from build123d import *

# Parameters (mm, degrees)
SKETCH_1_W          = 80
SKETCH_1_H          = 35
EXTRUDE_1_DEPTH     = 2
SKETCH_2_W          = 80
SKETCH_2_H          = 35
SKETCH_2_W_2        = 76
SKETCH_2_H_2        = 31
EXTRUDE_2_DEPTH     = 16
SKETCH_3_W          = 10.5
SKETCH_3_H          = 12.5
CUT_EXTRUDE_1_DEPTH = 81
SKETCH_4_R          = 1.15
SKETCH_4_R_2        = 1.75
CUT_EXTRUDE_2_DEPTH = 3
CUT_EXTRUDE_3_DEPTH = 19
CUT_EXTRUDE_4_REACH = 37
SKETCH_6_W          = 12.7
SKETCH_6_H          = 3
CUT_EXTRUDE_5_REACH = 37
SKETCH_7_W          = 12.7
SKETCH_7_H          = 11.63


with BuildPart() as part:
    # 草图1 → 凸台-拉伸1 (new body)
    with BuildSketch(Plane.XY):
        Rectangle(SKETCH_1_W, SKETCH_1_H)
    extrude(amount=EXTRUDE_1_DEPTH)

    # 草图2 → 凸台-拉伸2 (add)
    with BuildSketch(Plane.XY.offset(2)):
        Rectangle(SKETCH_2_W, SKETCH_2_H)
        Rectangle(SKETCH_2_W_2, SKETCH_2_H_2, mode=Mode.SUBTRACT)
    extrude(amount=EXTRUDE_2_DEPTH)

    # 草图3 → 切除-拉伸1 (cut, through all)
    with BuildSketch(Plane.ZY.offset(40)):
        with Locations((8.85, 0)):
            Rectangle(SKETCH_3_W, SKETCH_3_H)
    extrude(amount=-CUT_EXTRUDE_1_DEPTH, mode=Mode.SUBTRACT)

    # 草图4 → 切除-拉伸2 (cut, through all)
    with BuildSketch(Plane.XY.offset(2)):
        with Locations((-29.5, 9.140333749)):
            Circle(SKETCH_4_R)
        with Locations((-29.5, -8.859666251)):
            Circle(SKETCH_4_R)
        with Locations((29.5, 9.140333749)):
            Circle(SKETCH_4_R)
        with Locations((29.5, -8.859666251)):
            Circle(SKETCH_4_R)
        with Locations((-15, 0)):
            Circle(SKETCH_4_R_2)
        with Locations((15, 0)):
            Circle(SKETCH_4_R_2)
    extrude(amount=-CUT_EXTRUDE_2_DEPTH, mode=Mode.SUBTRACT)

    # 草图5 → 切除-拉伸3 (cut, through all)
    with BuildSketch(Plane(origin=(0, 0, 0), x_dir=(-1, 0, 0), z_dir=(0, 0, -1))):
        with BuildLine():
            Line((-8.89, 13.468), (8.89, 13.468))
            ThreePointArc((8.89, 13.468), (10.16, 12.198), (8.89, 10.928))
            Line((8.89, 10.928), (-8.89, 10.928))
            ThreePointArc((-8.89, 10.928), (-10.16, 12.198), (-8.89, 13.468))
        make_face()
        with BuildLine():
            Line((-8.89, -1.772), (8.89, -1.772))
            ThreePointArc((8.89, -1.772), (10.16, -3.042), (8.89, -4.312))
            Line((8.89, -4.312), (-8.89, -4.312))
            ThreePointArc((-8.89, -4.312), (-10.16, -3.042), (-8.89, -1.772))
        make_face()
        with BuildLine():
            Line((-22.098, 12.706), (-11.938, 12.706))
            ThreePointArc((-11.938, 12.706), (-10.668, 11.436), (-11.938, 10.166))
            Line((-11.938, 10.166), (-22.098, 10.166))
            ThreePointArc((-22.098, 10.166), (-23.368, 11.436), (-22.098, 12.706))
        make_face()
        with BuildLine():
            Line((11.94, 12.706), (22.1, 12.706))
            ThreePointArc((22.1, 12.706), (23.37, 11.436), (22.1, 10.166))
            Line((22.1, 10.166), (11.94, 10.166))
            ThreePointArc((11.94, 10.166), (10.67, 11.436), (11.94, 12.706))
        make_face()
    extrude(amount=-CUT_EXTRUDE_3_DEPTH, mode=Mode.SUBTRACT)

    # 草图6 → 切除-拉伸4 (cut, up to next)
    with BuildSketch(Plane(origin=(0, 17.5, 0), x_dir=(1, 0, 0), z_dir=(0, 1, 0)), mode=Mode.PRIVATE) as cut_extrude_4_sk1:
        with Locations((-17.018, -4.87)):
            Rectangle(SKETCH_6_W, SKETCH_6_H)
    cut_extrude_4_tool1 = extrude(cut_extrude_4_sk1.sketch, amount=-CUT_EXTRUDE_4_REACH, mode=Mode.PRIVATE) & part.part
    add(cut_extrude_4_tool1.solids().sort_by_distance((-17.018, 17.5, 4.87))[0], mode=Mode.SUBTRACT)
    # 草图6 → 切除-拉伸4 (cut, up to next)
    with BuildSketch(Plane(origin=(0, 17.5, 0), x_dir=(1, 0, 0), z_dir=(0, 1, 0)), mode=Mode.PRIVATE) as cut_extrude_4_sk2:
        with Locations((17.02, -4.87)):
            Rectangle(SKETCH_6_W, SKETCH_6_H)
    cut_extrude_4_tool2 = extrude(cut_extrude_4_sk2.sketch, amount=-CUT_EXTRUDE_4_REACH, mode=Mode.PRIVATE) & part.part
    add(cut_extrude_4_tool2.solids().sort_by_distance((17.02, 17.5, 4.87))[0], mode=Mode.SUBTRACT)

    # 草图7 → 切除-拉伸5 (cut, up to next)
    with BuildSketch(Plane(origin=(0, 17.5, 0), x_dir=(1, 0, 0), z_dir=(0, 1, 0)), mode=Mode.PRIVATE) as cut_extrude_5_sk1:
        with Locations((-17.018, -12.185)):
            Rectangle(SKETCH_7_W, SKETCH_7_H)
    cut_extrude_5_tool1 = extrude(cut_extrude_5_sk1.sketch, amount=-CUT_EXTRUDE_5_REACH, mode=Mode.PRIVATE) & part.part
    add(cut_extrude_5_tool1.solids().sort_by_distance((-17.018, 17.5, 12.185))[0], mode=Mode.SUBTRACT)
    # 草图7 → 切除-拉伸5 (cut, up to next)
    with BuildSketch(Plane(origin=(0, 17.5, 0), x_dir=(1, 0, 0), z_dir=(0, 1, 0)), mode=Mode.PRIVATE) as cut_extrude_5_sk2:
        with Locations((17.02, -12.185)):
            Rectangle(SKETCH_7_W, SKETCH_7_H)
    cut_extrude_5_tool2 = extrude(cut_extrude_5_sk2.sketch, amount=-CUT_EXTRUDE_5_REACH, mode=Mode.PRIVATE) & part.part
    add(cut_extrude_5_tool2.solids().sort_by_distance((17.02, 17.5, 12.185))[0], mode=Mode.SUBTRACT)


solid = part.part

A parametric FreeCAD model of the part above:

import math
import FreeCAD as App
import Part
import Sketcher
Q = App.Units.Quantity

doc = App.newDocument("Part")
body = doc.addObject("PartDesign::Body", "Body")

sketch1 = doc.addObject("Sketcher::SketchObject", "Sketch")
body.addObject(sketch1)
sketch1.AttachmentSupport = (doc.XY_Plane, [""])
sketch1.MapMode = "FlatFace"
sketch1.addGeometry([
    Part.LineSegment(App.Vector(-40, 18, 0), App.Vector(-40, -18, 0)),
    Part.LineSegment(App.Vector(-40, -18, 0), App.Vector(40, -18, 0)),
    Part.LineSegment(App.Vector(40, -18, 0), App.Vector(40, 18, 0)),
    Part.LineSegment(App.Vector(40, 18, 0), App.Vector(-40, 18, 0)),
], False)
sketch1.addConstraint([
    Sketcher.Constraint("Coincident", 0, 2, 1, 1),
    Sketcher.Constraint("Coincident", 1, 2, 2, 1),
    Sketcher.Constraint("Coincident", 2, 2, 3, 1),
    Sketcher.Constraint("Coincident", 3, 2, 0, 1),
    Sketcher.Constraint("Vertical", 0),
    Sketcher.Constraint("Horizontal", 1),
    Sketcher.Constraint("Vertical", 2),
    Sketcher.Constraint("Horizontal", 3),
    Sketcher.Constraint("Symmetric", 0, 2, 2, 2, -1, 1),
    Sketcher.Constraint("DistanceX", 1, 1, 1, 2, Q("80 mm")),
    Sketcher.Constraint("DistanceY", 0, 2, 0, 1, Q("35 mm")),
])
pad1 = doc.addObject("PartDesign::Pad", "Pad")
body.addObject(pad1)
pad1.Profile = sketch1
pad1.Length = 2

sketch2 = doc.addObject("Sketcher::SketchObject", "Sketch001")
body.addObject(sketch2)
sketch2.AttachmentSupport = (doc.XY_Plane, [""])
sketch2.MapMode = "FlatFace"
sketch2.AttachmentOffset = App.Placement(App.Vector(0, 0, 2), App.Rotation())
sketch2.addGeometry([
    Part.LineSegment(App.Vector(-40, 18, 0), App.Vector(-40, -18, 0)),
    Part.LineSegment(App.Vector(-40, -18, 0), App.Vector(40, -18, 0)),
    Part.LineSegment(App.Vector(40, -18, 0), App.Vector(40, 18, 0)),
    Part.LineSegment(App.Vector(40, 18, 0), App.Vector(-40, 18, 0)),
    Part.LineSegment(App.Vector(38, -16, 0), App.Vector(-38, -16, 0)),
    Part.LineSegment(App.Vector(-38, -16, 0), App.Vector(-38, 16, 0)),
    Part.LineSegment(App.Vector(-38, 16, 0), App.Vector(38, 16, 0)),
    Part.LineSegment(App.Vector(38, 16, 0), App.Vector(38, -16, 0)),
], False)
sketch2.addConstraint([
    Sketcher.Constraint("Coincident", 0, 2, 1, 1),
    Sketcher.Constraint("Coincident", 1, 2, 2, 1),
    Sketcher.Constraint("Coincident", 2, 2, 3, 1),
    Sketcher.Constraint("Coincident", 3, 2, 0, 1),
    Sketcher.Constraint("Coincident", 4, 2, 5, 1),
    Sketcher.Constraint("Coincident", 5, 2, 6, 1),
    Sketcher.Constraint("Coincident", 6, 2, 7, 1),
    Sketcher.Constraint("Coincident", 7, 2, 4, 1),
    Sketcher.Constraint("Vertical", 0),
    Sketcher.Constraint("Horizontal", 1),
    Sketcher.Constraint("Vertical", 2),
    Sketcher.Constraint("Horizontal", 3),
    Sketcher.Constraint("Horizontal", 4),
    Sketcher.Constraint("Vertical", 5),
    Sketcher.Constraint("Horizontal", 6),
    Sketcher.Constraint("Vertical", 7),
    Sketcher.Constraint("Symmetric", 0, 2, 2, 2, -1, 1),
    Sketcher.Constraint("Symmetric", 4, 2, 6, 2, -1, 1),
    Sketcher.Constraint("DistanceX", 1, 1, 1, 2, Q("80 mm")),
    Sketcher.Constraint("DistanceX", 4, 2, 4, 1, Q("76 mm")),
    Sketcher.Constraint("DistanceY", 0, 2, 0, 1, Q("35 mm")),
    Sketcher.Constraint("DistanceY", 5, 1, 5, 2, Q("31 mm")),
])
pad2 = doc.addObject("PartDesign::Pad", "Pad001")
body.addObject(pad2)
pad2.Profile = sketch2
pad2.Length = 16

sketch3 = doc.addObject("Sketcher::SketchObject", "Sketch002")
body.addObject(sketch3)
sketch3.AttachmentSupport = (doc.YZ_Plane, [""])
sketch3.MapMode = "FlatFace"
sketch3.AttachmentOffset = App.Placement(App.Vector(0, 0, -40), App.Rotation())
sketch3.addGeometry([
    Part.LineSegment(App.Vector(6, 4, 0), App.Vector(-6, 4, 0)),
    Part.LineSegment(App.Vector(-6, 4, 0), App.Vector(-6, 14, 0)),
    Part.LineSegment(App.Vector(-6, 14, 0), App.Vector(6, 14, 0)),
    Part.LineSegment(App.Vector(6, 14, 0), App.Vector(6, 4, 0)),
], False)
sketch3.addConstraint([
    Sketcher.Constraint("Coincident", 0, 2, 1, 1),
    Sketcher.Constraint("Coincident", 1, 2, 2, 1),
    Sketcher.Constraint("Coincident", 2, 2, 3, 1),
    Sketcher.Constraint("Coincident", 3, 2, 0, 1),
    Sketcher.Constraint("Horizontal", 0),
    Sketcher.Constraint("Vertical", 1),
    Sketcher.Constraint("Horizontal", 2),
    Sketcher.Constraint("Vertical", 3),
    Sketcher.Constraint("DistanceX", 0, 2, 0, 1, Q("12.5 mm")),
    Sketcher.Constraint("DistanceY", 1, 1, 1, 2, Q("10.5 mm")),
    Sketcher.Constraint("DistanceY", -1, 1, 0, 2, Q("3.6 mm")),
    Sketcher.Constraint("DistanceX", 0, 2, -1, 1, Q("6.25 mm")),
])
pocket1 = doc.addObject("PartDesign::Pocket", "Pocket")
body.addObject(pocket1)
pocket1.Profile = sketch3
pocket1.Type = "ThroughAll"
pocket1.Reversed = True

sketch4 = doc.addObject("Sketcher::SketchObject", "Sketch003")
body.addObject(sketch4)
sketch4.AttachmentSupport = (doc.XY_Plane, [""])
sketch4.MapMode = "FlatFace"
sketch4.AttachmentOffset = App.Placement(App.Vector(0, 0, 2), App.Rotation())
sketch4.addGeometry([
    Part.Circle(App.Vector(-29.5, 9.1, 0), App.Vector(0, 0, 1), 1.1),
    Part.Circle(App.Vector(-29.5, -8.9, 0), App.Vector(0, 0, 1), 1.1),
    Part.Circle(App.Vector(29.5, 9.1, 0), App.Vector(0, 0, 1), 1.1),
    Part.Circle(App.Vector(29.5, -8.9, 0), App.Vector(0, 0, 1), 1.1),
    Part.Circle(App.Vector(-15, 0, 0), App.Vector(0, 0, 1), 1.8),
    Part.Circle(App.Vector(15, 0, 0), App.Vector(0, 0, 1), 1.8),
], False)
sketch4.addConstraint([
    Sketcher.Constraint("Equal", 0, 1),
    Sketcher.Constraint("Equal", 1, 2),
    Sketcher.Constraint("Equal", 2, 3),
    Sketcher.Constraint("Equal", 4, 5),
    Sketcher.Constraint("Symmetric", 4, 3, 5, 3, -1, 1),
    Sketcher.Constraint("Symmetric", 0, 3, 2, 3, -2),
    Sketcher.Constraint("Symmetric", 1, 3, 3, 3, -2),
    Sketcher.Constraint("PointOnObject", 4, 3, -1),
    Sketcher.Constraint("Vertical", 0, 3, 1, 3),
    Sketcher.Constraint("Diameter", 0, Q("2.3 mm")),
    Sketcher.Constraint("Diameter", 4, Q("3.5 mm")),
    Sketcher.Constraint("DistanceX", 4, 3, -1, 1, Q("15 mm")),
    Sketcher.Constraint("DistanceY", 1, 3, 0, 3, Q("18 mm")),
    Sketcher.Constraint("DistanceX", 0, 3, 2, 3, Q("59 mm")),
    Sketcher.Constraint("DistanceY", -1, 1, 0, 3, Q("9.140334 mm")),
])
pocket2 = doc.addObject("PartDesign::Pocket", "Pocket001")
body.addObject(pocket2)
pocket2.Profile = sketch4
pocket2.Type = "ThroughAll"

sketch5 = doc.addObject("Sketcher::SketchObject", "Sketch004")
body.addObject(sketch5)
sketch5.AttachmentSupport = (doc.XY_Plane, [""])
sketch5.MapMode = "FlatFace"
sketch5.addGeometry([
    Part.LineSegment(App.Vector(-8.9, 13.5, 0), App.Vector(8.9, 13.5, 0)),
    Part.ArcOfCircle(Part.Circle(App.Vector(8.9, 12.2, 0), App.Vector(0, 0, 1), 1.3), math.radians(-90), math.radians(90)),
    Part.LineSegment(App.Vector(8.9, 10.9, 0), App.Vector(-8.9, 10.9, 0)),
    Part.ArcOfCircle(Part.Circle(App.Vector(-8.9, 12.2, 0), App.Vector(0, 0, 1), 1.3), math.radians(90), math.radians(270)),
    Part.LineSegment(App.Vector(-8.9, -1.8, 0), App.Vector(8.9, -1.8, 0)),
    Part.ArcOfCircle(Part.Circle(App.Vector(8.9, -3, 0), App.Vector(0, 0, 1), 1.3), math.radians(-90), math.radians(90)),
    Part.LineSegment(App.Vector(8.9, -4.3, 0), App.Vector(-8.9, -4.3, 0)),
    Part.ArcOfCircle(Part.Circle(App.Vector(-8.9, -3, 0), App.Vector(0, 0, 1), 1.3), math.radians(90), math.radians(270)),
    Part.LineSegment(App.Vector(11.9, 12.7, 0), App.Vector(22.1, 12.7, 0)),
    Part.ArcOfCircle(Part.Circle(App.Vector(22.1, 11.4, 0), App.Vector(0, 0, 1), 1.3), math.radians(-90), math.radians(90)),
    Part.LineSegment(App.Vector(22.1, 10.2, 0), App.Vector(11.9, 10.2, 0)),
    Part.ArcOfCircle(Part.Circle(App.Vector(11.9, 11.4, 0), App.Vector(0, 0, 1), 1.3), math.radians(90), math.radians(270)),
    Part.LineSegment(App.Vector(-22.1, 12.7, 0), App.Vector(-11.9, 12.7, 0)),
    Part.ArcOfCircle(Part.Circle(App.Vector(-11.9, 11.4, 0), App.Vector(0, 0, 1), 1.3), math.radians(-90), math.radians(90)),
    Part.LineSegment(App.Vector(-11.9, 10.2, 0), App.Vector(-22.1, 10.2, 0)),
    Part.ArcOfCircle(Part.Circle(App.Vector(-22.1, 11.4, 0), App.Vector(0, 0, 1), 1.3), math.radians(90), math.radians(270)),
], False)
sketch5.addConstraint([
    Sketcher.Constraint("Tangent", 0, 2, 1, 2),
    Sketcher.Constraint("Tangent", 1, 1, 2, 1),
    Sketcher.Constraint("Tangent", 2, 2, 3, 2),
    Sketcher.Constraint("Tangent", 3, 1, 0, 1),
    Sketcher.Constraint("Tangent", 4, 2, 5, 2),
    Sketcher.Constraint("Tangent", 5, 1, 6, 1),
    Sketcher.Constraint("Tangent", 6, 2, 7, 2),
    Sketcher.Constraint("Tangent", 7, 1, 4, 1),
    Sketcher.Constraint("Tangent", 8, 2, 9, 2),
    Sketcher.Constraint("Tangent", 9, 1, 10, 1),
    Sketcher.Constraint("Tangent", 10, 2, 11, 2),
    Sketcher.Constraint("Tangent", 11, 1, 8, 1),
    Sketcher.Constraint("Tangent", 12, 2, 13, 2),
    Sketcher.Constraint("Tangent", 13, 1, 14, 1),
    Sketcher.Constraint("Tangent", 14, 2, 15, 2),
    Sketcher.Constraint("Tangent", 15, 1, 12, 1),
    Sketcher.Constraint("Horizontal", 0),
    Sketcher.Constraint("Horizontal", 2),
    Sketcher.Constraint("Horizontal", 4),
    Sketcher.Constraint("Horizontal", 6),
    Sketcher.Constraint("Horizontal", 8),
    Sketcher.Constraint("Horizontal", 10),
    Sketcher.Constraint("Horizontal", 12),
    Sketcher.Constraint("Horizontal", 14),
    Sketcher.Constraint("Equal", 3, 5),
    Sketcher.Constraint("Equal", 7, 9),
    Sketcher.Constraint("Equal", 11, 13),
    Sketcher.Constraint("Horizontal", 11, 3, 13, 3),
    Sketcher.Constraint("Vertical", 1, 3, 5, 3),
    Sketcher.Constraint("Vertical", 3, 3, 7, 3),
    Sketcher.Constraint("Equal", 10, 12),
    Sketcher.Constraint("Radius", 1, Q("1.27 mm")),
    Sketcher.Constraint("DistanceX", 0, 1, 0, 2, Q("17.78 mm")),
    Sketcher.Constraint("DistanceX", 8, 1, 8, 2, Q("10.16 mm")),
    Sketcher.Constraint("DistanceX", 15, 3, -1, 1, Q("22.1 mm")),
    Sketcher.Constraint("DistanceY", 4, 2, 1, 1, Q("12.7 mm")),
    Sketcher.Constraint("DistanceX", -1, 1, 1, 3, Q("8.89 mm")),
    Sketcher.Constraint("DistanceY", -1, 1, 1, 3, Q("12.198 mm")),
    Sketcher.Constraint("DistanceX", -1, 1, 9, 3, Q("22.098 mm")),
    Sketcher.Constraint("DistanceY", -1, 1, 9, 3, Q("11.436 mm")),
])
pocket3 = doc.addObject("PartDesign::Pocket", "Pocket002")
body.addObject(pocket3)
pocket3.Profile = sketch5
pocket3.Type = "ThroughAll"
pocket3.Reversed = True

sketch6 = doc.addObject("Sketcher::SketchObject", "Sketch005")
body.addObject(sketch6)
sketch6.AttachmentSupport = (doc.XZ_Plane, [""])
sketch6.MapMode = "FlatFace"
sketch6.AttachmentOffset = App.Placement(App.Vector(0, 0, -17.5), App.Rotation())
sketch6.addGeometry([
    Part.LineSegment(App.Vector(-23.4, 3.4, 0), App.Vector(-23.4, 6.4, 0)),
    Part.LineSegment(App.Vector(-23.4, 6.4, 0), App.Vector(-10.7, 6.4, 0)),
    Part.LineSegment(App.Vector(-10.7, 6.4, 0), App.Vector(-10.7, 3.4, 0)),
    Part.LineSegment(App.Vector(-10.7, 3.4, 0), App.Vector(-23.4, 3.4, 0)),
], False)
sketch6.addConstraint([
    Sketcher.Constraint("Coincident", 0, 2, 1, 1),
    Sketcher.Constraint("Coincident", 1, 2, 2, 1),
    Sketcher.Constraint("Coincident", 2, 2, 3, 1),
    Sketcher.Constraint("Coincident", 3, 2, 0, 1),
    Sketcher.Constraint("Vertical", 0),
    Sketcher.Constraint("Horizontal", 1),
    Sketcher.Constraint("Vertical", 2),
    Sketcher.Constraint("Horizontal", 3),
    Sketcher.Constraint("DistanceY", 0, 1, 0, 2, Q("3 mm")),
    Sketcher.Constraint("DistanceX", 1, 1, 1, 2, Q("12.7 mm")),
    Sketcher.Constraint("DistanceY", -1, 1, 0, 2, Q("6.37 mm")),
    Sketcher.Constraint("DistanceX", 0, 2, -1, 1, Q("23.368 mm")),
])
pocket4 = doc.addObject("PartDesign::Pocket", "Pocket003")
body.addObject(pocket4)
pocket4.Profile = sketch6
pocket4.Type = "UpToFirst"
pocket4.Reversed = True

sketch7 = doc.addObject("Sketcher::SketchObject", "Sketch006")
body.addObject(sketch7)
sketch7.AttachmentSupport = (doc.XZ_Plane, [""])
sketch7.MapMode = "FlatFace"
sketch7.AttachmentOffset = App.Placement(App.Vector(0, 0, -17.5), App.Rotation())
sketch7.addGeometry([
    Part.LineSegment(App.Vector(10.7, 3.4, 0), App.Vector(10.7, 6.4, 0)),
    Part.LineSegment(App.Vector(10.7, 6.4, 0), App.Vector(23.4, 6.4, 0)),
    Part.LineSegment(App.Vector(23.4, 6.4, 0), App.Vector(23.4, 3.4, 0)),
    Part.LineSegment(App.Vector(23.4, 3.4, 0), App.Vector(10.7, 3.4, 0)),
], False)
sketch7.addConstraint([
    Sketcher.Constraint("Coincident", 0, 2, 1, 1),
    Sketcher.Constraint("Coincident", 1, 2, 2, 1),
    Sketcher.Constraint("Coincident", 2, 2, 3, 1),
    Sketcher.Constraint("Coincident", 3, 2, 0, 1),
    Sketcher.Constraint("Vertical", 0),
    Sketcher.Constraint("Horizontal", 1),
    Sketcher.Constraint("Vertical", 2),
    Sketcher.Constraint("Horizontal", 3),
    Sketcher.Constraint("DistanceY", 0, 1, 0, 2, Q("3 mm")),
    Sketcher.Constraint("DistanceX", 1, 1, 1, 2, Q("12.7 mm")),
    Sketcher.Constraint("DistanceX", -1, 1, 0, 2, Q("10.67 mm")),
    Sketcher.Constraint("DistanceY", -1, 1, 0, 2, Q("6.37 mm")),
])
pocket5 = doc.addObject("PartDesign::Pocket", "Pocket004")
body.addObject(pocket5)
pocket5.Profile = sketch7
pocket5.Type = "UpToFirst"
pocket5.Reversed = True

sketch8 = doc.addObject("Sketcher::SketchObject", "Sketch007")
body.addObject(sketch8)
sketch8.AttachmentSupport = (doc.XZ_Plane, [""])
sketch8.MapMode = "FlatFace"
sketch8.AttachmentOffset = App.Placement(App.Vector(0, 0, -17.5), App.Rotation())
sketch8.addGeometry([
    Part.LineSegment(App.Vector(-23, 6, 0), App.Vector(-23, 18, 0)),
    Part.LineSegment(App.Vector(-23, 18, 0), App.Vector(-11, 18, 0)),
    Part.LineSegment(App.Vector(-11, 18, 0), App.Vector(-11, 6, 0)),
    Part.LineSegment(App.Vector(-11, 6, 0), App.Vector(-23, 6, 0)),
], False)
sketch8.addConstraint([
    Sketcher.Constraint("Coincident", 0, 2, 1, 1),
    Sketcher.Constraint("Coincident", 1, 2, 2, 1),
    Sketcher.Constraint("Coincident", 2, 2, 3, 1),
    Sketcher.Constraint("Coincident", 3, 2, 0, 1),
    Sketcher.Constraint("Vertical", 0),
    Sketcher.Constraint("Horizontal", 1),
    Sketcher.Constraint("Vertical", 2),
    Sketcher.Constraint("Horizontal", 3),
    Sketcher.Constraint("DistanceX", 1, 1, 1, 2, Q("12.7 mm")),
    Sketcher.Constraint("DistanceY", -1, 1, 0, 2, Q("18 mm")),
    Sketcher.Constraint("DistanceY", 0, 1, 0, 2, Q("11.63 mm")),
    Sketcher.Constraint("DistanceX", 0, 2, -1, 1, Q("23.368 mm")),
])
pocket6 = doc.addObject("PartDesign::Pocket", "Pocket005")
body.addObject(pocket6)
pocket6.Profile = sketch8
pocket6.Type = "UpToFirst"
pocket6.Reversed = True

sketch9 = doc.addObject("Sketcher::SketchObject", "Sketch008")
body.addObject(sketch9)
sketch9.AttachmentSupport = (doc.XZ_Plane, [""])
sketch9.MapMode = "FlatFace"
sketch9.AttachmentOffset = App.Placement(App.Vector(0, 0, -17.5), App.Rotation())
sketch9.addGeometry([
    Part.LineSegment(App.Vector(11, 6, 0), App.Vector(11, 18, 0)),
    Part.LineSegment(App.Vector(11, 18, 0), App.Vector(23, 18, 0)),
    Part.LineSegment(App.Vector(23, 18, 0), App.Vector(23, 6, 0)),
    Part.LineSegment(App.Vector(23, 6, 0), App.Vector(11, 6, 0)),
], False)
sketch9.addConstraint([
    Sketcher.Constraint("Coincident", 0, 2, 1, 1),
    Sketcher.Constraint("Coincident", 1, 2, 2, 1),
    Sketcher.Constraint("Coincident", 2, 2, 3, 1),
    Sketcher.Constraint("Coincident", 3, 2, 0, 1),
    Sketcher.Constraint("Vertical", 0),
    Sketcher.Constraint("Horizontal", 1),
    Sketcher.Constraint("Vertical", 2),
    Sketcher.Constraint("Horizontal", 3),
    Sketcher.Constraint("DistanceX", 1, 1, 1, 2, Q("12.7 mm")),
    Sketcher.Constraint("DistanceY", -1, 1, 0, 2, Q("18 mm")),
    Sketcher.Constraint("DistanceY", 0, 1, 0, 2, Q("11.63 mm")),
    Sketcher.Constraint("DistanceX", -1, 1, 0, 2, Q("10.67 mm")),
])
pocket7 = doc.addObject("PartDesign::Pocket", "Pocket006")
body.addObject(pocket7)
pocket7.Profile = sketch9
pocket7.Type = "UpToFirst"
pocket7.Reversed = True

doc.recompute()
